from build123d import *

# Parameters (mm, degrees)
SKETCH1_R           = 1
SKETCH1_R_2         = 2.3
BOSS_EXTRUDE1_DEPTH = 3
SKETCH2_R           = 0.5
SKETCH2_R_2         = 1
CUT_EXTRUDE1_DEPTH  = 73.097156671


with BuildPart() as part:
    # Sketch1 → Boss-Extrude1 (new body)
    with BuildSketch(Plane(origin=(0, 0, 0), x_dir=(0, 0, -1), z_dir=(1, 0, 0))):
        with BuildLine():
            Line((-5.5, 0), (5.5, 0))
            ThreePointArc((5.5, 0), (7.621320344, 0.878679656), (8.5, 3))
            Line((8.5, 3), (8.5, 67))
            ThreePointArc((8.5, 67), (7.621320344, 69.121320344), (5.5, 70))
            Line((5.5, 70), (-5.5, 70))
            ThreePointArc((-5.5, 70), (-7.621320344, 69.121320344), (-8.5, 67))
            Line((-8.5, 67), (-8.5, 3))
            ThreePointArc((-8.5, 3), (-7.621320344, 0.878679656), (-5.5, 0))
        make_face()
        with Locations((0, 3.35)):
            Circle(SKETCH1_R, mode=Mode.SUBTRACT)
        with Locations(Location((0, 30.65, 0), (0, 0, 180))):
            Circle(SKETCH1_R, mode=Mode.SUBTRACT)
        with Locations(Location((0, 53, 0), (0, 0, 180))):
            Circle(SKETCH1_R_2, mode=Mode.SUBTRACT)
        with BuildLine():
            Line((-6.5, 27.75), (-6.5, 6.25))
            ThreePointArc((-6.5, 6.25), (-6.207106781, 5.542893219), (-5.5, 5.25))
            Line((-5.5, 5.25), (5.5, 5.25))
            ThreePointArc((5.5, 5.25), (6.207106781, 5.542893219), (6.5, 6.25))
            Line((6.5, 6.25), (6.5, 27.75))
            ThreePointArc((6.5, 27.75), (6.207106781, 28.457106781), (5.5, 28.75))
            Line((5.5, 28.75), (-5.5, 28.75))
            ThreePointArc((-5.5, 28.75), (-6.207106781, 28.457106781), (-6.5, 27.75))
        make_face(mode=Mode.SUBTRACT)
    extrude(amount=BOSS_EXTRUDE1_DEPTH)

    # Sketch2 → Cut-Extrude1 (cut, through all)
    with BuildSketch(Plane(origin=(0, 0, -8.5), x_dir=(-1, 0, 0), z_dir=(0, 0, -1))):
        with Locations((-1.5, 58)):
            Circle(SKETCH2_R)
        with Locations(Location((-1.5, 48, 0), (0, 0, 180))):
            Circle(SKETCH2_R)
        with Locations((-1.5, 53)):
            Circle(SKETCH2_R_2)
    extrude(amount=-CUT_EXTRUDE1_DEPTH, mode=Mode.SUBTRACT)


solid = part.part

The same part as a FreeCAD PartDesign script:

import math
import FreeCAD as App
import Part
import Sketcher
Q = App.Units.Quantity

doc = App.newDocument("Part")
body = doc.addObject("PartDesign::Body", "Body")

# Sketch on YZ plane
sketch1 = body.newObject("Sketcher::SketchObject", "Sketch")
sketch1.AttachmentSupport = (doc.getObject("YZ_Plane"), [""])
sketch1.MapMode = "FlatFace"
sketch1.addGeometry([
    Part.LineSegment(App.Vector(0, 5.5, 0), App.Vector(0, -5.5, 0)),  # 0
    Part.ArcOfCircle(Part.Circle(App.Vector(3, -5.5, 0), App.Vector(0, 0, 1), 3), math.radians(180), math.radians(270)),  # 1
    Part.LineSegment(App.Vector(3, -8.5, 0), App.Vector(67, -8.5, 0)),  # 2
    Part.ArcOfCircle(Part.Circle(App.Vector(67, -5.5, 0), App.Vector(0, 0, 1), 3), math.radians(-90), math.radians(0)),  # 3
    Part.LineSegment(App.Vector(70, -5.5, 0), App.Vector(70, 5.5, 0)),  # 4
    Part.ArcOfCircle(Part.Circle(App.Vector(67, 5.5, 0), App.Vector(0, 0, 1), 3), math.radians(0), math.radians(90)),  # 5
    Part.LineSegment(App.Vector(67, 8.5, 0), App.Vector(3, 8.5, 0)),  # 6
    Part.ArcOfCircle(Part.Circle(App.Vector(3, 5.5, 0), App.Vector(0, 0, 1), 3), math.radians(90), math.radians(180)),  # 7
    Part.Circle(App.Vector(3.4, 0, 0), App.Vector(0, 0, 1), 1),  # 8
    Part.LineSegment(App.Vector(6.2, 6.5, 0), App.Vector(27.8, 6.5, 0)),  # 9
    Part.ArcOfCircle(Part.Circle(App.Vector(27.7, 5.5, 0), App.Vector(0, 0, 1), 1), math.radians(0), math.radians(90)),  # 10
    Part.LineSegment(App.Vector(28.8, 5.5, 0), App.Vector(28.8, -5.5, 0)),  # 11
    Part.ArcOfCircle(Part.Circle(App.Vector(27.7, -5.5, 0), App.Vector(0, 0, 1), 1), math.radians(-90), math.radians(0)),  # 12
    Part.LineSegment(App.Vector(27.8, -6.5, 0), App.Vector(6.2, -6.5, 0)),  # 13
    Part.ArcOfCircle(Part.Circle(App.Vector(6.3, -5.5, 0), App.Vector(0, 0, 1), 1), math.radians(-180), math.radians(-90)),  # 14
    Part.LineSegment(App.Vector(5.2, -5.5, 0), App.Vector(5.2, 5.5, 0)),  # 15
    Part.ArcOfCircle(Part.Circle(App.Vector(6.3, 5.5, 0), App.Vector(0, 0, 1), 1), math.radians(90), math.radians(180)),  # 16
    Part.Circle(App.Vector(30.6, 0, 0), App.Vector(0, 0, 1), 1),  # 17
    Part.Circle(App.Vector(53, 0, 0), App.Vector(0, 0, 1), 2.3),  # 18
], False)
sketch1.addConstraint([
    Sketcher.Constraint("Tangent", 0, 2, 1, 1),
    Sketcher.Constraint("Tangent", 1, 2, 2, 1),
    Sketcher.Constraint("Tangent", 2, 2, 3, 1),
    Sketcher.Constraint("Tangent", 3, 2, 4, 1),
    Sketcher.Constraint("Tangent", 4, 2, 5, 1),
    Sketcher.Constraint("Tangent", 5, 2, 6, 1),
    Sketcher.Constraint("Tangent", 6, 2, 7, 1),
    Sketcher.Constraint("Tangent", 7, 2, 0, 1),
    Sketcher.Constraint("Tangent", 9, 2, 10, 2),
    Sketcher.Constraint("Tangent", 10, 1, 11, 1),
    Sketcher.Constraint("Tangent", 11, 2, 12, 2),
    Sketcher.Constraint("Tangent", 12, 1, 13, 1),
    Sketcher.Constraint("Tangent", 13, 2, 14, 2),
    Sketcher.Constraint("Tangent", 14, 1, 15, 1),
    Sketcher.Constraint("Tangent", 15, 2, 16, 2),
    Sketcher.Constraint("Tangent", 16, 1, 9, 1),
    Sketcher.Constraint("Vertical", 0),
    Sketcher.Constraint("Horizontal", 2),
    Sketcher.Constraint("Vertical", 4),
    Sketcher.Constraint("Horizontal", 6),
    Sketcher.Constraint("Horizontal", 9),
    Sketcher.Constraint("Vertical", 11),
    Sketcher.Constraint("Horizontal", 13),
    Sketcher.Constraint("Vertical", 15),
    Sketcher.Constraint("Equal", 1, 3),
    Sketcher.Constraint("Equal", 3, 5),
    Sketcher.Constraint("Equal", 5, 7),
    Sketcher.Constraint("Equal", 8, 10),
    Sketcher.Constraint("Equal", 10, 12),
    Sketcher.Constraint("Equal", 12, 14),
    Sketcher.Constraint("Equal", 14, 16),
    Sketcher.Constraint("Equal", 16, 17),
    Sketcher.Constraint("Symmetric", 0, 2, 7, 2, -1, 1),
    Sketcher.Constraint("PointOnObject", 8, 3, -1),
    Sketcher.Constraint("PointOnObject", 17, 3, -1),
    Sketcher.Constraint("PointOnObject", 18, 3, -1),
    Sketcher.Constraint("Horizontal", 7, 3, 10, 3),
    Sketcher.Constraint("Horizontal", 3, 3, 12, 3),
    Sketcher.Constraint("Diameter", 8, Q("2 mm")),
    Sketcher.Constraint("Radius", 1, Q("3 mm")),
    Sketcher.Constraint("Diameter", 18, Q("4.6 mm")),
    Sketcher.Constraint("DistanceX", 2, 1, 2, 2, Q("64 mm")),
    Sketcher.Constraint("DistanceY", 0, 2, 0, 1, Q("11 mm")),
    Sketcher.Constraint("DistanceX", 9, 1, 9, 2, Q("21.5 mm")),
    Sketcher.Constraint("DistanceX", -1, 1, 18, 3, Q("53 mm")),
    Sketcher.Constraint("DistanceX", 8, 3, 10, 3, Q("24.4 mm")),
    Sketcher.Constraint("DistanceX", 10, 3, 17, 3, Q("2.9 mm")),
    Sketcher.Constraint("DistanceX", -1, 1, 8, 3, Q("3.35 mm")),
])
pad1 = body.newObject("PartDesign::Pad", "Pad")
pad1.Profile = sketch1
pad1.Length = 3

# Sketch on XY plane
sketch2 = body.newObject("Sketcher::SketchObject", "Sketch001")
sketch2.AttachmentSupport = (doc.getObject("XY_Plane"), [""])
sketch2.MapMode = "FlatFace"
sketch2.AttachmentOffset = App.Placement(App.Vector(0, 0, -8.5), App.Rotation())
sketch2.addGeometry([
    Part.Circle(App.Vector(1.5, 58, 0), App.Vector(0, 0, 1), 0.5),
    Part.Circle(App.Vector(1.5, 48, 0), App.Vector(0, 0, 1), 0.5),
    Part.Circle(App.Vector(1.5, 53, 0), App.Vector(0, 0, 1), 1),
], False)
sketch2.addConstraint([
    Sketcher.Constraint("Equal", 0, 1),
    Sketcher.Constraint("Vertical", 0, 3, 1, 3),
    Sketcher.Constraint("Vertical", 1, 3, 2, 3),
    Sketcher.Constraint("Diameter", 0, Q("1 mm")),
    Sketcher.Constraint("Diameter", 2, Q("2 mm")),
    Sketcher.Constraint("DistanceY", -1, 1, 0, 3, Q("58 mm")),
    Sketcher.Constraint("DistanceY", -1, 1, 1, 3, Q("48 mm")),
    Sketcher.Constraint("DistanceY", -1, 1, 2, 3, Q("53 mm")),
    Sketcher.Constraint("DistanceX", -1, 1, 0, 3, Q("1.5 mm")),
])
pocket1 = body.newObject("PartDesign::Pocket", "Pocket")
pocket1.Profile = sketch2
pocket1.Type = "ThroughAll"
pocket1.Reversed = True

doc.recompute()
